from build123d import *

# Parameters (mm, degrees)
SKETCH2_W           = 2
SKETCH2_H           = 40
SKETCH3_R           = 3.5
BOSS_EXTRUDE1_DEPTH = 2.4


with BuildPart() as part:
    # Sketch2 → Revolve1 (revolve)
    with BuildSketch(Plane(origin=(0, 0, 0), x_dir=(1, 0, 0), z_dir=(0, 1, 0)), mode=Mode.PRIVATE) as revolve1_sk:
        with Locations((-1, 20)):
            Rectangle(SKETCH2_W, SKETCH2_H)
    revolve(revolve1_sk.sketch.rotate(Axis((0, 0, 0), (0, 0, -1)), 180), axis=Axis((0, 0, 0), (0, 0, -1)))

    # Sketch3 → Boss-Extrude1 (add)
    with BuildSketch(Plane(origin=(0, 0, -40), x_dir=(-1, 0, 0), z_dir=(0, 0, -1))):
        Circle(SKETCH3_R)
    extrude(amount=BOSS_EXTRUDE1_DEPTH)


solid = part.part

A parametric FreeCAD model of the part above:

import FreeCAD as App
import Part
import Sketcher
from FreeCAD import Vector

doc = App.newDocument("Part")
body = doc.addObject("PartDesign::Body", "Body")

sketch1 = doc.addObject("Sketcher::SketchObject", "Sketch")
body.addObject(sketch1)
sketch1.AttachmentSupport = (doc.XZ_Plane, [""])
sketch1.MapMode = "FlatFace"
sketch1.addGeometry(Part.LineSegment(Vector(-2, -40, 0), Vector(-2, 0, 0)), False)
sketch1.addGeometry(Part.LineSegment(Vector(-2, 0, 0), Vector(0, 0, 0)), False)
sketch1.addGeometry(Part.LineSegment(Vector(0, 0, 0), Vector(0, -40, 0)), False)
sketch1.addGeometry(Part.LineSegment(Vector(0, -40, 0), Vector(-2, -40, 0)), False)
sketch1.addConstraint(Sketcher.Constraint("Coincident", 0, 2, 1, 1))
sketch1.addConstraint(Sketcher.Constraint("Coincident", 1, 2, 2, 1))
sketch1.addConstraint(Sketcher.Constraint("Coincident", 2, 2, 3, 1))
sketch1.addConstraint(Sketcher.Constraint("Coincident", 3, 2, 0, 1))
sketch1.addConstraint(Sketcher.Constraint("Vertical", 0))
sketch1.addConstraint(Sketcher.Constraint("Horizontal", 1))
sketch1.addConstraint(Sketcher.Constraint("Vertical", 2))
sketch1.addConstraint(Sketcher.Constraint("Horizontal", 3))
sketch1.addConstraint(Sketcher.Constraint("Coincident", 1, 2, -1, 1))
sketch1.addConstraint(Sketcher.Constraint("DistanceX", 1, 1, 1, 2, 2.0))
sketch1.addConstraint(Sketcher.Constraint("DistanceY", 0, 1, 0, 2, 40.0))
revolution = doc.addObject("PartDesign::Revolution", "Revolution")
body.addObject(revolution)
revolution.Profile = sketch1
revolution.ReferenceAxis = (sketch1, ["V_Axis"])
revolution.Angle = 360

sketch2 = doc.addObject("Sketcher::SketchObject", "Sketch001")
body.addObject(sketch2)
sketch2.AttachmentSupport = (doc.XY_Plane, [""])
sketch2.MapMode = "FlatFace"
sketch2.AttachmentOffset = App.Placement(Vector(0, 0, -40), App.Rotation())
sketch2.addGeometry(Part.Circle(Vector(0, 0, 0), Vector(0, 0, 1), 3.5), False)
sketch2.addConstraint(Sketcher.Constraint("Coincident", 0, 3, -1, 1))
sketch2.addConstraint(Sketcher.Constraint("Diameter", 0, 7.0))
pad1 = doc.addObject("PartDesign::Pad", "Pad")
body.addObject(pad1)
pad1.Profile = sketch2
pad1.Length = 2.4
pad1.Reversed = True

doc.recompute()
